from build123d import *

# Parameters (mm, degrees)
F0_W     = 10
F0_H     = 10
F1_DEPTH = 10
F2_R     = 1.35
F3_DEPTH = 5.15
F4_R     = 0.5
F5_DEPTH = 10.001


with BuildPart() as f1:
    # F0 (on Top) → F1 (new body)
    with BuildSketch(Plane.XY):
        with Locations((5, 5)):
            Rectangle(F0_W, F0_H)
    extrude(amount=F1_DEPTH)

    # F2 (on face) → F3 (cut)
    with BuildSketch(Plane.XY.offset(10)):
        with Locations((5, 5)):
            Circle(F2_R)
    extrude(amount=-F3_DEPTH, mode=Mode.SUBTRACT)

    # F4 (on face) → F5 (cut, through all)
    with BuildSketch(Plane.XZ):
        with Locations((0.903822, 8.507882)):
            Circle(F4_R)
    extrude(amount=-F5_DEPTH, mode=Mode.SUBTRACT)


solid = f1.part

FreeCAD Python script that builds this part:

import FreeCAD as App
import Part
import Sketcher
from FreeCAD import Vector

doc = App.newDocument("Part")
body = doc.addObject("PartDesign::Body", "Body")

# Sketch on XY plane
sketch1 = body.newObject("Sketcher::SketchObject", "Sketch")
sketch1.AttachmentSupport = (doc.getObject("XY_Plane"), [""])
sketch1.MapMode = "FlatFace"
sketch1.addGeometry(Part.LineSegment(Vector(0, 10, 0), Vector(0, 0, 0)), False)
sketch1.addGeometry(Part.LineSegment(Vector(0, 0, 0), Vector(10, 0, 0)), False)
sketch1.addGeometry(Part.LineSegment(Vector(10, 0, 0), Vector(10, 10, 0)), False)
sketch1.addGeometry(Part.LineSegment(Vector(10, 10, 0), Vector(0, 10, 0)), False)
sketch1.addConstraint(Sketcher.Constraint("Coincident", 0, 2, 1, 1))
sketch1.addConstraint(Sketcher.Constraint("Coincident", 1, 2, 2, 1))
sketch1.addConstraint(Sketcher.Constraint("Coincident", 2, 2, 3, 1))
sketch1.addConstraint(Sketcher.Constraint("Coincident", 3, 2, 0, 1))
sketch1.addConstraint(Sketcher.Constraint("Vertical", 0))
sketch1.addConstraint(Sketcher.Constraint("Horizontal", 1))
sketch1.addConstraint(Sketcher.Constraint("Vertical", 2))
sketch1.addConstraint(Sketcher.Constraint("Horizontal", 3))
sketch1.addConstraint(Sketcher.Constraint("Coincident", 0, 2, -1, 1))
sketch1.addConstraint(Sketcher.Constraint("Equal", 3, 0))
sketch1.addConstraint(Sketcher.Constraint("DistanceX", 1, 1, 1, 2, 10.0))
pad1 = body.newObject("PartDesign::Pad", "Pad")
pad1.Profile = sketch1
pad1.Length = 10

# Sketch on XY plane
sketch2 = body.newObject("Sketcher::SketchObject", "Sketch001")
sketch2.AttachmentSupport = (doc.getObject("XY_Plane"), [""])
sketch2.MapMode = "FlatFace"
sketch2.AttachmentOffset = App.Placement(Vector(0, 0, 10), App.Rotation())
sketch2.addGeometry(Part.Circle(Vector(5, 5, 0), Vector(0, 0, 1), 1.4), False)
sketch2.addConstraint(Sketcher.Constraint("Diameter", 0, 2.7))
sketch2.addConstraint(Sketcher.Constraint("DistanceX", -1, 1, 0, 3, 5.0))
sketch2.addConstraint(Sketcher.Constraint("DistanceY", -1, 1, 0, 3, 5.0))
pocket1 = body.newObject("PartDesign::Pocket", "Pocket")
pocket1.Profile = sketch2
pocket1.Length = 5.15

# Sketch on XZ plane
sketch3 = body.newObject("Sketcher::SketchObject", "Sketch002")
sketch3.AttachmentSupport = (doc.getObject("XZ_Plane"), [""])
sketch3.MapMode = "FlatFace"
sketch3.addGeometry(Part.Circle(Vector(0.9, 8.5, 0), Vector(0, 0, 1), 0.5), False)
sketch3.addConstraint(Sketcher.Constraint("Diameter", 0, 1.0))
sketch3.addConstraint(Sketcher.Constraint("DistanceX", -1, 1, 0, 3, 0.903822))
sketch3.addConstraint(Sketcher.Constraint("DistanceY", -1, 1, 0, 3, 8.507882))
pocket2 = body.newObject("PartDesign::Pocket", "Pocket001")
pocket2.Profile = sketch3
pocket2.Type = "ThroughAll"

doc.recompute()
